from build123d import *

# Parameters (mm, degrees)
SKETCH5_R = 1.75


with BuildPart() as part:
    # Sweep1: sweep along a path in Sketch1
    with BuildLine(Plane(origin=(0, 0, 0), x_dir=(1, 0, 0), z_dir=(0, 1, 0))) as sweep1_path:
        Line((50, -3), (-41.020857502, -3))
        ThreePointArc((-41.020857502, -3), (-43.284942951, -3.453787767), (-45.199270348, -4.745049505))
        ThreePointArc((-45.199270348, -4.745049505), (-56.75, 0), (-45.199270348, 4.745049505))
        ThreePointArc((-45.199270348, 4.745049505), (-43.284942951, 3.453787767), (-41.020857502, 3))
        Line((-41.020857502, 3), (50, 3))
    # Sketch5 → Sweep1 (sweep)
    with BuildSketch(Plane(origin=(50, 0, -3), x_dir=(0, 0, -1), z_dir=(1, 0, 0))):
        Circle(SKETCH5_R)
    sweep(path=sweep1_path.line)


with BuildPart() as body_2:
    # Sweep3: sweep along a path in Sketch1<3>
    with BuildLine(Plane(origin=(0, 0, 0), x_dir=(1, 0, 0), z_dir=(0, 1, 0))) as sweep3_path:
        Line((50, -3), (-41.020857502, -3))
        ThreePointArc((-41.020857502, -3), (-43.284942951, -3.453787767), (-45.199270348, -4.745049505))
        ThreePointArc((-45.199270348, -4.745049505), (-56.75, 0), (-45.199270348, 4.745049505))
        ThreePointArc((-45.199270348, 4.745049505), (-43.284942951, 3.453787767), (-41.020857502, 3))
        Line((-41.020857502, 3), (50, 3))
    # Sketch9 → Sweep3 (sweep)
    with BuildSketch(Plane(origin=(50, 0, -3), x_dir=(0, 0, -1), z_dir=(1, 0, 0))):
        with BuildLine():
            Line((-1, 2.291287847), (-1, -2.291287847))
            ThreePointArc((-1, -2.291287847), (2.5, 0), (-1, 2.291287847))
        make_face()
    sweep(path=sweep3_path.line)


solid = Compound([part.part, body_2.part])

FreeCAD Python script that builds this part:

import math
import FreeCAD as App
import Part
import Sketcher
from FreeCAD import Vector

doc = App.newDocument("Part")
body = doc.addObject("PartDesign::Body", "Body")

# Sketch on YZ plane
sketch1 = body.newObject("Sketcher::SketchObject", "Sketch")
sketch1.AttachmentSupport = (doc.getObject("YZ_Plane"), [""])
sketch1.MapMode = "FlatFace"
sketch1.AttachmentOffset = App.Placement(Vector(0, 0, 50), App.Rotation())
sketch1.addGeometry(Part.Circle(Vector(0, -3, 0), Vector(0, 0, 1), 1.8), False)
sketch1.addConstraint([
    Sketcher.Constraint("PointOnObject", 0, 3, -2),
    Sketcher.Constraint("Diameter", 0, 3.5),
    Sketcher.Constraint("DistanceY", 0, 3, -1, 1, 3.0),
])

# Sketch on XZ plane
sketch2 = body.newObject("Sketcher::SketchObject", "Sketch001")
sketch2.AttachmentSupport = (doc.getObject("XZ_Plane"), [""])
sketch2.MapMode = "FlatFace"
sketch2.addGeometry([
    Part.LineSegment(Vector(50, 3, 0), Vector(-41, 3, 0)),  # 0
    Part.ArcOfCircle(Part.Circle(Vector(-41, 8.9, 0), Vector(0, 0, 1), 5.9), math.radians(-135), math.radians(-90)),  # 1
    Part.ArcOfCircle(Part.Circle(Vector(-50, 0, 0), Vector(0, 0, 1), 6.8), math.radians(45), math.radians(315)),  # 2
    Part.ArcOfCircle(Part.Circle(Vector(-41, -8.9, 0), Vector(0, 0, 1), 5.9), math.radians(90), math.radians(135)),  # 3
    Part.LineSegment(Vector(-41, -3, 0), Vector(50, -3, 0)),  # 4
], False)
sketch2.addConstraint([
    Sketcher.Constraint("Tangent", 0, 2, 1, 2),
    Sketcher.Constraint("Tangent", 1, 1, 2, 1),
    Sketcher.Constraint("Tangent", 2, 2, 3, 2),
    Sketcher.Constraint("Tangent", 3, 1, 4, 1),
    Sketcher.Constraint("Horizontal", 0),
    Sketcher.Constraint("Horizontal", 4),
    Sketcher.Constraint("Equal", 1, 3),
    Sketcher.Constraint("Symmetric", 1, 3, 3, 3, -1),
    Sketcher.Constraint("Vertical", 0, 1, 4, 2),
    Sketcher.Constraint("Radius", 2, 6.75),
    Sketcher.Constraint("DistanceX", 2, 3, -1, 1, 50.0),
    Sketcher.Constraint("DistanceX", -1, 1, 0, 1, 50.0),
    Sketcher.Constraint("DistanceY", -1, 1, 0, 1, 3.0),
    Sketcher.Constraint("Radius", 1, 5.875),
])
doc.recompute()

additivepipe = body.newObject("PartDesign::AdditivePipe", "AdditivePipe")
additivepipe.Profile = sketch1
additivepipe.Spine = (sketch2, ["Edge1", "Edge2", "Edge3", "Edge4", "Edge5"])
body2 = doc.addObject("PartDesign::Body", "Body001")

# Sketch on YZ plane
sketch3 = body2.newObject("Sketcher::SketchObject", "Sketch002")
sketch3.AttachmentSupport = (doc.getObject("YZ_Plane001"), [""])
sketch3.MapMode = "FlatFace"
sketch3.AttachmentOffset = App.Placement(Vector(0, 0, 50), App.Rotation())
sketch3.addGeometry([
    Part.LineSegment(Vector(2.3, -2, 0), Vector(-2.3, -2, 0)),
    Part.ArcOfCircle(Part.Circle(Vector(0, -3, 0), Vector(0, 0, 1), 2.5), math.radians(156), math.radians(384)),
], False)
sketch3.addConstraint([
    Sketcher.Constraint("Coincident", 0, 1, 1, 2),
    Sketcher.Constraint("Coincident", 1, 1, 0, 2),
    Sketcher.Constraint("Horizontal", 0),
    Sketcher.Constraint("PointOnObject", 1, 3, -2),
    Sketcher.Constraint("Radius", 1, 2.5),
    Sketcher.Constraint("DistanceY", 1, 3, -1, 1, 3.0),
    Sketcher.Constraint("DistanceY", 0, 1, -1, 1, 2.0),
])

# Sketch on XZ plane
sketch4 = body2.newObject("Sketcher::SketchObject", "Sketch003")
sketch4.AttachmentSupport = (doc.getObject("XZ_Plane001"), [""])
sketch4.MapMode = "FlatFace"
sketch4.addGeometry([
    Part.LineSegment(Vector(50, 3, 0), Vector(-41, 3, 0)),  # 0
    Part.ArcOfCircle(Part.Circle(Vector(-41, 8.9, 0), Vector(0, 0, 1), 5.9), math.radians(-135), math.radians(-90)),  # 1
    Part.ArcOfCircle(Part.Circle(Vector(-50, 0, 0), Vector(0, 0, 1), 6.8), math.radians(45), math.radians(315)),  # 2
    Part.ArcOfCircle(Part.Circle(Vector(-41, -8.9, 0), Vector(0, 0, 1), 5.9), math.radians(90), math.radians(135)),  # 3
    Part.LineSegment(Vector(-41, -3, 0), Vector(50, -3, 0)),  # 4
], False)
sketch4.addConstraint([
    Sketcher.Constraint("Tangent", 0, 2, 1, 2),
    Sketcher.Constraint("Tangent", 1, 1, 2, 1),
    Sketcher.Constraint("Tangent", 2, 2, 3, 2),
    Sketcher.Constraint("Tangent", 3, 1, 4, 1),
    Sketcher.Constraint("Horizontal", 0),
    Sketcher.Constraint("Horizontal", 4),
    Sketcher.Constraint("Equal", 1, 3),
    Sketcher.Constraint("Symmetric", 1, 3, 3, 3, -1),
    Sketcher.Constraint("Vertical", 0, 1, 4, 2),
    Sketcher.Constraint("Radius", 2, 6.75),
    Sketcher.Constraint("DistanceX", 2, 3, -1, 1, 50.0),
    Sketcher.Constraint("DistanceX", -1, 1, 0, 1, 50.0),
    Sketcher.Constraint("DistanceY", -1, 1, 0, 1, 3.0),
    Sketcher.Constraint("Radius", 1, 5.875),
])
doc.recompute()

additivepipe2 = body2.newObject("PartDesign::AdditivePipe", "AdditivePipe001")
additivepipe2.Profile = sketch3
additivepipe2.Spine = (sketch4, ["Edge1", "Edge2", "Edge3", "Edge4", "Edge5"])

doc.recompute()
